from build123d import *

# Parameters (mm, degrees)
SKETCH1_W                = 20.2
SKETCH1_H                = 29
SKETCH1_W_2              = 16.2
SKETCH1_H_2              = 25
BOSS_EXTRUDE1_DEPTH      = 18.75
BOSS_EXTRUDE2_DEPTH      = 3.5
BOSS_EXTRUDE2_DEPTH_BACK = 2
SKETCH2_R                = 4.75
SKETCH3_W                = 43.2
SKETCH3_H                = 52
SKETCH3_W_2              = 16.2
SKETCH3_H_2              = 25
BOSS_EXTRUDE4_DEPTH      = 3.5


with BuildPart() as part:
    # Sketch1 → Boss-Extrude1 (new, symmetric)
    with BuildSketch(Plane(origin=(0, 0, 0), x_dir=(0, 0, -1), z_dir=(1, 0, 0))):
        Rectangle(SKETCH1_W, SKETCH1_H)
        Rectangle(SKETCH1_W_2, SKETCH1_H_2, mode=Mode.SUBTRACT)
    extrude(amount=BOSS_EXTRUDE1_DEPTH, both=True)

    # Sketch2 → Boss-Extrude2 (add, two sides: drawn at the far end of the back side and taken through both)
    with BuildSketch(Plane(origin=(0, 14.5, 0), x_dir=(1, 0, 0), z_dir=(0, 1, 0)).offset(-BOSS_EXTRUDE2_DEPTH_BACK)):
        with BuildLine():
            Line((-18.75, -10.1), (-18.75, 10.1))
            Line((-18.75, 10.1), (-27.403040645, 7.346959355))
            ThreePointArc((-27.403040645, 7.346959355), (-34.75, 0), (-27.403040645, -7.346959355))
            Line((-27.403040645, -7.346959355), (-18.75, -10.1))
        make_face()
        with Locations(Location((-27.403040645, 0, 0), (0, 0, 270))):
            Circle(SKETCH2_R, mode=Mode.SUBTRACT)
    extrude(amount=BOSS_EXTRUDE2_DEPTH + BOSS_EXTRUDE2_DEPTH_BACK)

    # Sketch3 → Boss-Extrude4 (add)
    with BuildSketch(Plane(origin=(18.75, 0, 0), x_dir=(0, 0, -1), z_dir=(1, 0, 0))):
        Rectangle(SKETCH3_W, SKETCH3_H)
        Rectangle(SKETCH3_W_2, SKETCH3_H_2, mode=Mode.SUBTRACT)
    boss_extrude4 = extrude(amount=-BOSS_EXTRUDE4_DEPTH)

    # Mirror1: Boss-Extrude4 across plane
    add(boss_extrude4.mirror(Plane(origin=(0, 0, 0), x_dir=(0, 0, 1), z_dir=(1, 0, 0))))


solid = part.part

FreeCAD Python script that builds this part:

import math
import FreeCAD as App
import Part
import Sketcher
Q = App.Units.Quantity


def add_polygon(sketch, points):
    """Adds a closed chain of lines whose ends are joined by coincident constraints."""
    first, n = sketch.GeometryCount, len(points)
    for a, b in zip(points, points[1:] + points[:1]):
        sketch.addGeometry(Part.LineSegment(App.Vector(*a, 0), App.Vector(*b, 0)), False)
    for i in range(n):
        sketch.addConstraint(Sketcher.Constraint("Coincident", first + i, 2, first + (i + 1) % n, 1))

doc = App.newDocument("Part")
body = doc.addObject("PartDesign::Body", "Body")

# Sketch on YZ plane
sketch1 = doc.addObject("Sketcher::SketchObject", "Sketch")
body.addObject(sketch1)
sketch1.AttachmentSupport = (doc.YZ_Plane, [""])
sketch1.MapMode = "FlatFace"
add_polygon(sketch1, [(14, 10), (-14, 10), (-14, -10), (14, -10)])  # lines 0-3
add_polygon(sketch1, [(-12, -8), (-12, 8), (12, 8), (12, -8)])  # lines 4-7
sketch1.addConstraint([
    Sketcher.Constraint("Horizontal", 0),
    Sketcher.Constraint("Vertical", 1),
    Sketcher.Constraint("Horizontal", 2),
    Sketcher.Constraint("Vertical", 3),
    Sketcher.Constraint("Vertical", 4),
    Sketcher.Constraint("Horizontal", 5),
    Sketcher.Constraint("Vertical", 6),
    Sketcher.Constraint("Horizontal", 7),
    Sketcher.Constraint("Symmetric", 0, 2, 2, 2, -1, 1),
    Sketcher.Constraint("Symmetric", 4, 2, 6, 2, -1, 1),
    Sketcher.Constraint("DistanceX", 0, 2, 0, 1, Q("29 mm")),
    Sketcher.Constraint("DistanceX", 5, 1, 5, 2, Q("25 mm")),
    Sketcher.Constraint("DistanceY", 1, 2, 1, 1, Q("20.2 mm")),
    Sketcher.Constraint("DistanceY", 4, 1, 4, 2, Q("16.2 mm")),
])
pad1 = doc.addObject("PartDesign::Pad", "Pad")
body.addObject(pad1)
pad1.Profile = sketch1
pad1.Length = 37.5
pad1.Midplane = True

# Sketch on XZ plane
sketch2 = doc.addObject("Sketcher::SketchObject", "Sketch001")
body.addObject(sketch2)
sketch2.AttachmentSupport = (doc.XZ_Plane, [""])
sketch2.MapMode = "FlatFace"
sketch2.AttachmentOffset = App.Placement(App.Vector(0, 0, -14.5), App.Rotation())
sketch2.addGeometry([
    Part.LineSegment(App.Vector(-18.8, 10.1, 0), App.Vector(-18.8, -10.1, 0)),  # 0
    Part.LineSegment(App.Vector(-18.8, -10.1, 0), App.Vector(-27.4, -7.3, 0)),  # 1
    Part.ArcOfCircle(Part.Circle(App.Vector(-27.4, 0, 0), App.Vector(0, 0, 1), 7.3), math.radians(90), math.radians(270)),  # 2
    Part.LineSegment(App.Vector(-27.4, 7.3, 0), App.Vector(-18.8, 10.1, 0)),  # 3
    Part.Circle(App.Vector(-27.4, 0, 0), App.Vector(0, 0, 1), 4.8),  # 4
], False)
sketch2.addConstraint([
    Sketcher.Constraint("Coincident", 0, 2, 1, 1),
    Sketcher.Constraint("Coincident", 1, 2, 2, 2),
    Sketcher.Constraint("Coincident", 2, 1, 3, 1),
    Sketcher.Constraint("Coincident", 3, 2, 0, 1),
    Sketcher.Constraint("Vertical", 0),
    Sketcher.Constraint("Coincident", 4, 3, 2, 3),
    Sketcher.Constraint("Symmetric", 1, 2, 2, 1, -1),
    Sketcher.Constraint("Vertical", 4, 3, 1, 2),
    Sketcher.Constraint("Equal", 1, 3),
    Sketcher.Constraint("Diameter", 4, Q("9.5 mm")),
    Sketcher.Constraint("DistanceY", 0, 2, 0, 1, Q("20.2 mm")),
    Sketcher.Constraint("DistanceX", 0, 2, -1, 1, Q("18.75 mm")),
    Sketcher.Constraint("Radius", 2, Q("7.346959 mm")),
    Sketcher.Constraint("DistanceX", 2, 3, -1, 1, Q("27.403041 mm")),
])
pad2 = doc.addObject("PartDesign::Pad", "Pad001")
body.addObject(pad2)
pad2.Profile = sketch2
pad2.Type = "TwoLengths"
pad2.Length = 3.5
pad2.Length2 = 2
pad2.Reversed = True

# Sketch on YZ plane
sketch3 = doc.addObject("Sketcher::SketchObject", "Sketch002")
body.addObject(sketch3)
sketch3.AttachmentSupport = (doc.YZ_Plane, [""])
sketch3.MapMode = "FlatFace"
sketch3.AttachmentOffset = App.Placement(App.Vector(0, 0, 18.75), App.Rotation())
add_polygon(sketch3, [(26, 22), (-26, 22), (-26, -22), (26, -22)])  # lines 0-3
add_polygon(sketch3, [(-12, -8), (-12, 8), (12, 8), (12, -8)])  # lines 4-7
sketch3.addConstraint([
    Sketcher.Constraint("Horizontal", 0),
    Sketcher.Constraint("Vertical", 1),
    Sketcher.Constraint("Horizontal", 2),
    Sketcher.Constraint("Vertical", 3),
    Sketcher.Constraint("Vertical", 4),
    Sketcher.Constraint("Horizontal", 5),
    Sketcher.Constraint("Vertical", 6),
    Sketcher.Constraint("Horizontal", 7),
    Sketcher.Constraint("Symmetric", 0, 2, 2, 2, -1, 1),
    Sketcher.Constraint("Symmetric", 4, 2, 6, 2, -1, 1),
    Sketcher.Constraint("DistanceX", 0, 2, 0, 1, Q("52 mm")),
    Sketcher.Constraint("DistanceX", 5, 1, 5, 2, Q("25 mm")),
    Sketcher.Constraint("DistanceY", 1, 2, 1, 1, Q("43.2 mm")),
    Sketcher.Constraint("DistanceY", 4, 1, 4, 2, Q("16.2 mm")),
])
pad3 = doc.addObject("PartDesign::Pad", "Pad002")
body.addObject(pad3)
pad3.Profile = sketch3
pad3.Length = 3.5
pad3.Reversed = True
doc.recompute()

mirrored = doc.addObject("PartDesign::Mirrored", "Mirrored")
body.addObject(mirrored)
mirrored.Originals = [pad3]
mirrored.MirrorPlane = (doc.YZ_Plane, [""])
body.Tip = mirrored

doc.recompute()
